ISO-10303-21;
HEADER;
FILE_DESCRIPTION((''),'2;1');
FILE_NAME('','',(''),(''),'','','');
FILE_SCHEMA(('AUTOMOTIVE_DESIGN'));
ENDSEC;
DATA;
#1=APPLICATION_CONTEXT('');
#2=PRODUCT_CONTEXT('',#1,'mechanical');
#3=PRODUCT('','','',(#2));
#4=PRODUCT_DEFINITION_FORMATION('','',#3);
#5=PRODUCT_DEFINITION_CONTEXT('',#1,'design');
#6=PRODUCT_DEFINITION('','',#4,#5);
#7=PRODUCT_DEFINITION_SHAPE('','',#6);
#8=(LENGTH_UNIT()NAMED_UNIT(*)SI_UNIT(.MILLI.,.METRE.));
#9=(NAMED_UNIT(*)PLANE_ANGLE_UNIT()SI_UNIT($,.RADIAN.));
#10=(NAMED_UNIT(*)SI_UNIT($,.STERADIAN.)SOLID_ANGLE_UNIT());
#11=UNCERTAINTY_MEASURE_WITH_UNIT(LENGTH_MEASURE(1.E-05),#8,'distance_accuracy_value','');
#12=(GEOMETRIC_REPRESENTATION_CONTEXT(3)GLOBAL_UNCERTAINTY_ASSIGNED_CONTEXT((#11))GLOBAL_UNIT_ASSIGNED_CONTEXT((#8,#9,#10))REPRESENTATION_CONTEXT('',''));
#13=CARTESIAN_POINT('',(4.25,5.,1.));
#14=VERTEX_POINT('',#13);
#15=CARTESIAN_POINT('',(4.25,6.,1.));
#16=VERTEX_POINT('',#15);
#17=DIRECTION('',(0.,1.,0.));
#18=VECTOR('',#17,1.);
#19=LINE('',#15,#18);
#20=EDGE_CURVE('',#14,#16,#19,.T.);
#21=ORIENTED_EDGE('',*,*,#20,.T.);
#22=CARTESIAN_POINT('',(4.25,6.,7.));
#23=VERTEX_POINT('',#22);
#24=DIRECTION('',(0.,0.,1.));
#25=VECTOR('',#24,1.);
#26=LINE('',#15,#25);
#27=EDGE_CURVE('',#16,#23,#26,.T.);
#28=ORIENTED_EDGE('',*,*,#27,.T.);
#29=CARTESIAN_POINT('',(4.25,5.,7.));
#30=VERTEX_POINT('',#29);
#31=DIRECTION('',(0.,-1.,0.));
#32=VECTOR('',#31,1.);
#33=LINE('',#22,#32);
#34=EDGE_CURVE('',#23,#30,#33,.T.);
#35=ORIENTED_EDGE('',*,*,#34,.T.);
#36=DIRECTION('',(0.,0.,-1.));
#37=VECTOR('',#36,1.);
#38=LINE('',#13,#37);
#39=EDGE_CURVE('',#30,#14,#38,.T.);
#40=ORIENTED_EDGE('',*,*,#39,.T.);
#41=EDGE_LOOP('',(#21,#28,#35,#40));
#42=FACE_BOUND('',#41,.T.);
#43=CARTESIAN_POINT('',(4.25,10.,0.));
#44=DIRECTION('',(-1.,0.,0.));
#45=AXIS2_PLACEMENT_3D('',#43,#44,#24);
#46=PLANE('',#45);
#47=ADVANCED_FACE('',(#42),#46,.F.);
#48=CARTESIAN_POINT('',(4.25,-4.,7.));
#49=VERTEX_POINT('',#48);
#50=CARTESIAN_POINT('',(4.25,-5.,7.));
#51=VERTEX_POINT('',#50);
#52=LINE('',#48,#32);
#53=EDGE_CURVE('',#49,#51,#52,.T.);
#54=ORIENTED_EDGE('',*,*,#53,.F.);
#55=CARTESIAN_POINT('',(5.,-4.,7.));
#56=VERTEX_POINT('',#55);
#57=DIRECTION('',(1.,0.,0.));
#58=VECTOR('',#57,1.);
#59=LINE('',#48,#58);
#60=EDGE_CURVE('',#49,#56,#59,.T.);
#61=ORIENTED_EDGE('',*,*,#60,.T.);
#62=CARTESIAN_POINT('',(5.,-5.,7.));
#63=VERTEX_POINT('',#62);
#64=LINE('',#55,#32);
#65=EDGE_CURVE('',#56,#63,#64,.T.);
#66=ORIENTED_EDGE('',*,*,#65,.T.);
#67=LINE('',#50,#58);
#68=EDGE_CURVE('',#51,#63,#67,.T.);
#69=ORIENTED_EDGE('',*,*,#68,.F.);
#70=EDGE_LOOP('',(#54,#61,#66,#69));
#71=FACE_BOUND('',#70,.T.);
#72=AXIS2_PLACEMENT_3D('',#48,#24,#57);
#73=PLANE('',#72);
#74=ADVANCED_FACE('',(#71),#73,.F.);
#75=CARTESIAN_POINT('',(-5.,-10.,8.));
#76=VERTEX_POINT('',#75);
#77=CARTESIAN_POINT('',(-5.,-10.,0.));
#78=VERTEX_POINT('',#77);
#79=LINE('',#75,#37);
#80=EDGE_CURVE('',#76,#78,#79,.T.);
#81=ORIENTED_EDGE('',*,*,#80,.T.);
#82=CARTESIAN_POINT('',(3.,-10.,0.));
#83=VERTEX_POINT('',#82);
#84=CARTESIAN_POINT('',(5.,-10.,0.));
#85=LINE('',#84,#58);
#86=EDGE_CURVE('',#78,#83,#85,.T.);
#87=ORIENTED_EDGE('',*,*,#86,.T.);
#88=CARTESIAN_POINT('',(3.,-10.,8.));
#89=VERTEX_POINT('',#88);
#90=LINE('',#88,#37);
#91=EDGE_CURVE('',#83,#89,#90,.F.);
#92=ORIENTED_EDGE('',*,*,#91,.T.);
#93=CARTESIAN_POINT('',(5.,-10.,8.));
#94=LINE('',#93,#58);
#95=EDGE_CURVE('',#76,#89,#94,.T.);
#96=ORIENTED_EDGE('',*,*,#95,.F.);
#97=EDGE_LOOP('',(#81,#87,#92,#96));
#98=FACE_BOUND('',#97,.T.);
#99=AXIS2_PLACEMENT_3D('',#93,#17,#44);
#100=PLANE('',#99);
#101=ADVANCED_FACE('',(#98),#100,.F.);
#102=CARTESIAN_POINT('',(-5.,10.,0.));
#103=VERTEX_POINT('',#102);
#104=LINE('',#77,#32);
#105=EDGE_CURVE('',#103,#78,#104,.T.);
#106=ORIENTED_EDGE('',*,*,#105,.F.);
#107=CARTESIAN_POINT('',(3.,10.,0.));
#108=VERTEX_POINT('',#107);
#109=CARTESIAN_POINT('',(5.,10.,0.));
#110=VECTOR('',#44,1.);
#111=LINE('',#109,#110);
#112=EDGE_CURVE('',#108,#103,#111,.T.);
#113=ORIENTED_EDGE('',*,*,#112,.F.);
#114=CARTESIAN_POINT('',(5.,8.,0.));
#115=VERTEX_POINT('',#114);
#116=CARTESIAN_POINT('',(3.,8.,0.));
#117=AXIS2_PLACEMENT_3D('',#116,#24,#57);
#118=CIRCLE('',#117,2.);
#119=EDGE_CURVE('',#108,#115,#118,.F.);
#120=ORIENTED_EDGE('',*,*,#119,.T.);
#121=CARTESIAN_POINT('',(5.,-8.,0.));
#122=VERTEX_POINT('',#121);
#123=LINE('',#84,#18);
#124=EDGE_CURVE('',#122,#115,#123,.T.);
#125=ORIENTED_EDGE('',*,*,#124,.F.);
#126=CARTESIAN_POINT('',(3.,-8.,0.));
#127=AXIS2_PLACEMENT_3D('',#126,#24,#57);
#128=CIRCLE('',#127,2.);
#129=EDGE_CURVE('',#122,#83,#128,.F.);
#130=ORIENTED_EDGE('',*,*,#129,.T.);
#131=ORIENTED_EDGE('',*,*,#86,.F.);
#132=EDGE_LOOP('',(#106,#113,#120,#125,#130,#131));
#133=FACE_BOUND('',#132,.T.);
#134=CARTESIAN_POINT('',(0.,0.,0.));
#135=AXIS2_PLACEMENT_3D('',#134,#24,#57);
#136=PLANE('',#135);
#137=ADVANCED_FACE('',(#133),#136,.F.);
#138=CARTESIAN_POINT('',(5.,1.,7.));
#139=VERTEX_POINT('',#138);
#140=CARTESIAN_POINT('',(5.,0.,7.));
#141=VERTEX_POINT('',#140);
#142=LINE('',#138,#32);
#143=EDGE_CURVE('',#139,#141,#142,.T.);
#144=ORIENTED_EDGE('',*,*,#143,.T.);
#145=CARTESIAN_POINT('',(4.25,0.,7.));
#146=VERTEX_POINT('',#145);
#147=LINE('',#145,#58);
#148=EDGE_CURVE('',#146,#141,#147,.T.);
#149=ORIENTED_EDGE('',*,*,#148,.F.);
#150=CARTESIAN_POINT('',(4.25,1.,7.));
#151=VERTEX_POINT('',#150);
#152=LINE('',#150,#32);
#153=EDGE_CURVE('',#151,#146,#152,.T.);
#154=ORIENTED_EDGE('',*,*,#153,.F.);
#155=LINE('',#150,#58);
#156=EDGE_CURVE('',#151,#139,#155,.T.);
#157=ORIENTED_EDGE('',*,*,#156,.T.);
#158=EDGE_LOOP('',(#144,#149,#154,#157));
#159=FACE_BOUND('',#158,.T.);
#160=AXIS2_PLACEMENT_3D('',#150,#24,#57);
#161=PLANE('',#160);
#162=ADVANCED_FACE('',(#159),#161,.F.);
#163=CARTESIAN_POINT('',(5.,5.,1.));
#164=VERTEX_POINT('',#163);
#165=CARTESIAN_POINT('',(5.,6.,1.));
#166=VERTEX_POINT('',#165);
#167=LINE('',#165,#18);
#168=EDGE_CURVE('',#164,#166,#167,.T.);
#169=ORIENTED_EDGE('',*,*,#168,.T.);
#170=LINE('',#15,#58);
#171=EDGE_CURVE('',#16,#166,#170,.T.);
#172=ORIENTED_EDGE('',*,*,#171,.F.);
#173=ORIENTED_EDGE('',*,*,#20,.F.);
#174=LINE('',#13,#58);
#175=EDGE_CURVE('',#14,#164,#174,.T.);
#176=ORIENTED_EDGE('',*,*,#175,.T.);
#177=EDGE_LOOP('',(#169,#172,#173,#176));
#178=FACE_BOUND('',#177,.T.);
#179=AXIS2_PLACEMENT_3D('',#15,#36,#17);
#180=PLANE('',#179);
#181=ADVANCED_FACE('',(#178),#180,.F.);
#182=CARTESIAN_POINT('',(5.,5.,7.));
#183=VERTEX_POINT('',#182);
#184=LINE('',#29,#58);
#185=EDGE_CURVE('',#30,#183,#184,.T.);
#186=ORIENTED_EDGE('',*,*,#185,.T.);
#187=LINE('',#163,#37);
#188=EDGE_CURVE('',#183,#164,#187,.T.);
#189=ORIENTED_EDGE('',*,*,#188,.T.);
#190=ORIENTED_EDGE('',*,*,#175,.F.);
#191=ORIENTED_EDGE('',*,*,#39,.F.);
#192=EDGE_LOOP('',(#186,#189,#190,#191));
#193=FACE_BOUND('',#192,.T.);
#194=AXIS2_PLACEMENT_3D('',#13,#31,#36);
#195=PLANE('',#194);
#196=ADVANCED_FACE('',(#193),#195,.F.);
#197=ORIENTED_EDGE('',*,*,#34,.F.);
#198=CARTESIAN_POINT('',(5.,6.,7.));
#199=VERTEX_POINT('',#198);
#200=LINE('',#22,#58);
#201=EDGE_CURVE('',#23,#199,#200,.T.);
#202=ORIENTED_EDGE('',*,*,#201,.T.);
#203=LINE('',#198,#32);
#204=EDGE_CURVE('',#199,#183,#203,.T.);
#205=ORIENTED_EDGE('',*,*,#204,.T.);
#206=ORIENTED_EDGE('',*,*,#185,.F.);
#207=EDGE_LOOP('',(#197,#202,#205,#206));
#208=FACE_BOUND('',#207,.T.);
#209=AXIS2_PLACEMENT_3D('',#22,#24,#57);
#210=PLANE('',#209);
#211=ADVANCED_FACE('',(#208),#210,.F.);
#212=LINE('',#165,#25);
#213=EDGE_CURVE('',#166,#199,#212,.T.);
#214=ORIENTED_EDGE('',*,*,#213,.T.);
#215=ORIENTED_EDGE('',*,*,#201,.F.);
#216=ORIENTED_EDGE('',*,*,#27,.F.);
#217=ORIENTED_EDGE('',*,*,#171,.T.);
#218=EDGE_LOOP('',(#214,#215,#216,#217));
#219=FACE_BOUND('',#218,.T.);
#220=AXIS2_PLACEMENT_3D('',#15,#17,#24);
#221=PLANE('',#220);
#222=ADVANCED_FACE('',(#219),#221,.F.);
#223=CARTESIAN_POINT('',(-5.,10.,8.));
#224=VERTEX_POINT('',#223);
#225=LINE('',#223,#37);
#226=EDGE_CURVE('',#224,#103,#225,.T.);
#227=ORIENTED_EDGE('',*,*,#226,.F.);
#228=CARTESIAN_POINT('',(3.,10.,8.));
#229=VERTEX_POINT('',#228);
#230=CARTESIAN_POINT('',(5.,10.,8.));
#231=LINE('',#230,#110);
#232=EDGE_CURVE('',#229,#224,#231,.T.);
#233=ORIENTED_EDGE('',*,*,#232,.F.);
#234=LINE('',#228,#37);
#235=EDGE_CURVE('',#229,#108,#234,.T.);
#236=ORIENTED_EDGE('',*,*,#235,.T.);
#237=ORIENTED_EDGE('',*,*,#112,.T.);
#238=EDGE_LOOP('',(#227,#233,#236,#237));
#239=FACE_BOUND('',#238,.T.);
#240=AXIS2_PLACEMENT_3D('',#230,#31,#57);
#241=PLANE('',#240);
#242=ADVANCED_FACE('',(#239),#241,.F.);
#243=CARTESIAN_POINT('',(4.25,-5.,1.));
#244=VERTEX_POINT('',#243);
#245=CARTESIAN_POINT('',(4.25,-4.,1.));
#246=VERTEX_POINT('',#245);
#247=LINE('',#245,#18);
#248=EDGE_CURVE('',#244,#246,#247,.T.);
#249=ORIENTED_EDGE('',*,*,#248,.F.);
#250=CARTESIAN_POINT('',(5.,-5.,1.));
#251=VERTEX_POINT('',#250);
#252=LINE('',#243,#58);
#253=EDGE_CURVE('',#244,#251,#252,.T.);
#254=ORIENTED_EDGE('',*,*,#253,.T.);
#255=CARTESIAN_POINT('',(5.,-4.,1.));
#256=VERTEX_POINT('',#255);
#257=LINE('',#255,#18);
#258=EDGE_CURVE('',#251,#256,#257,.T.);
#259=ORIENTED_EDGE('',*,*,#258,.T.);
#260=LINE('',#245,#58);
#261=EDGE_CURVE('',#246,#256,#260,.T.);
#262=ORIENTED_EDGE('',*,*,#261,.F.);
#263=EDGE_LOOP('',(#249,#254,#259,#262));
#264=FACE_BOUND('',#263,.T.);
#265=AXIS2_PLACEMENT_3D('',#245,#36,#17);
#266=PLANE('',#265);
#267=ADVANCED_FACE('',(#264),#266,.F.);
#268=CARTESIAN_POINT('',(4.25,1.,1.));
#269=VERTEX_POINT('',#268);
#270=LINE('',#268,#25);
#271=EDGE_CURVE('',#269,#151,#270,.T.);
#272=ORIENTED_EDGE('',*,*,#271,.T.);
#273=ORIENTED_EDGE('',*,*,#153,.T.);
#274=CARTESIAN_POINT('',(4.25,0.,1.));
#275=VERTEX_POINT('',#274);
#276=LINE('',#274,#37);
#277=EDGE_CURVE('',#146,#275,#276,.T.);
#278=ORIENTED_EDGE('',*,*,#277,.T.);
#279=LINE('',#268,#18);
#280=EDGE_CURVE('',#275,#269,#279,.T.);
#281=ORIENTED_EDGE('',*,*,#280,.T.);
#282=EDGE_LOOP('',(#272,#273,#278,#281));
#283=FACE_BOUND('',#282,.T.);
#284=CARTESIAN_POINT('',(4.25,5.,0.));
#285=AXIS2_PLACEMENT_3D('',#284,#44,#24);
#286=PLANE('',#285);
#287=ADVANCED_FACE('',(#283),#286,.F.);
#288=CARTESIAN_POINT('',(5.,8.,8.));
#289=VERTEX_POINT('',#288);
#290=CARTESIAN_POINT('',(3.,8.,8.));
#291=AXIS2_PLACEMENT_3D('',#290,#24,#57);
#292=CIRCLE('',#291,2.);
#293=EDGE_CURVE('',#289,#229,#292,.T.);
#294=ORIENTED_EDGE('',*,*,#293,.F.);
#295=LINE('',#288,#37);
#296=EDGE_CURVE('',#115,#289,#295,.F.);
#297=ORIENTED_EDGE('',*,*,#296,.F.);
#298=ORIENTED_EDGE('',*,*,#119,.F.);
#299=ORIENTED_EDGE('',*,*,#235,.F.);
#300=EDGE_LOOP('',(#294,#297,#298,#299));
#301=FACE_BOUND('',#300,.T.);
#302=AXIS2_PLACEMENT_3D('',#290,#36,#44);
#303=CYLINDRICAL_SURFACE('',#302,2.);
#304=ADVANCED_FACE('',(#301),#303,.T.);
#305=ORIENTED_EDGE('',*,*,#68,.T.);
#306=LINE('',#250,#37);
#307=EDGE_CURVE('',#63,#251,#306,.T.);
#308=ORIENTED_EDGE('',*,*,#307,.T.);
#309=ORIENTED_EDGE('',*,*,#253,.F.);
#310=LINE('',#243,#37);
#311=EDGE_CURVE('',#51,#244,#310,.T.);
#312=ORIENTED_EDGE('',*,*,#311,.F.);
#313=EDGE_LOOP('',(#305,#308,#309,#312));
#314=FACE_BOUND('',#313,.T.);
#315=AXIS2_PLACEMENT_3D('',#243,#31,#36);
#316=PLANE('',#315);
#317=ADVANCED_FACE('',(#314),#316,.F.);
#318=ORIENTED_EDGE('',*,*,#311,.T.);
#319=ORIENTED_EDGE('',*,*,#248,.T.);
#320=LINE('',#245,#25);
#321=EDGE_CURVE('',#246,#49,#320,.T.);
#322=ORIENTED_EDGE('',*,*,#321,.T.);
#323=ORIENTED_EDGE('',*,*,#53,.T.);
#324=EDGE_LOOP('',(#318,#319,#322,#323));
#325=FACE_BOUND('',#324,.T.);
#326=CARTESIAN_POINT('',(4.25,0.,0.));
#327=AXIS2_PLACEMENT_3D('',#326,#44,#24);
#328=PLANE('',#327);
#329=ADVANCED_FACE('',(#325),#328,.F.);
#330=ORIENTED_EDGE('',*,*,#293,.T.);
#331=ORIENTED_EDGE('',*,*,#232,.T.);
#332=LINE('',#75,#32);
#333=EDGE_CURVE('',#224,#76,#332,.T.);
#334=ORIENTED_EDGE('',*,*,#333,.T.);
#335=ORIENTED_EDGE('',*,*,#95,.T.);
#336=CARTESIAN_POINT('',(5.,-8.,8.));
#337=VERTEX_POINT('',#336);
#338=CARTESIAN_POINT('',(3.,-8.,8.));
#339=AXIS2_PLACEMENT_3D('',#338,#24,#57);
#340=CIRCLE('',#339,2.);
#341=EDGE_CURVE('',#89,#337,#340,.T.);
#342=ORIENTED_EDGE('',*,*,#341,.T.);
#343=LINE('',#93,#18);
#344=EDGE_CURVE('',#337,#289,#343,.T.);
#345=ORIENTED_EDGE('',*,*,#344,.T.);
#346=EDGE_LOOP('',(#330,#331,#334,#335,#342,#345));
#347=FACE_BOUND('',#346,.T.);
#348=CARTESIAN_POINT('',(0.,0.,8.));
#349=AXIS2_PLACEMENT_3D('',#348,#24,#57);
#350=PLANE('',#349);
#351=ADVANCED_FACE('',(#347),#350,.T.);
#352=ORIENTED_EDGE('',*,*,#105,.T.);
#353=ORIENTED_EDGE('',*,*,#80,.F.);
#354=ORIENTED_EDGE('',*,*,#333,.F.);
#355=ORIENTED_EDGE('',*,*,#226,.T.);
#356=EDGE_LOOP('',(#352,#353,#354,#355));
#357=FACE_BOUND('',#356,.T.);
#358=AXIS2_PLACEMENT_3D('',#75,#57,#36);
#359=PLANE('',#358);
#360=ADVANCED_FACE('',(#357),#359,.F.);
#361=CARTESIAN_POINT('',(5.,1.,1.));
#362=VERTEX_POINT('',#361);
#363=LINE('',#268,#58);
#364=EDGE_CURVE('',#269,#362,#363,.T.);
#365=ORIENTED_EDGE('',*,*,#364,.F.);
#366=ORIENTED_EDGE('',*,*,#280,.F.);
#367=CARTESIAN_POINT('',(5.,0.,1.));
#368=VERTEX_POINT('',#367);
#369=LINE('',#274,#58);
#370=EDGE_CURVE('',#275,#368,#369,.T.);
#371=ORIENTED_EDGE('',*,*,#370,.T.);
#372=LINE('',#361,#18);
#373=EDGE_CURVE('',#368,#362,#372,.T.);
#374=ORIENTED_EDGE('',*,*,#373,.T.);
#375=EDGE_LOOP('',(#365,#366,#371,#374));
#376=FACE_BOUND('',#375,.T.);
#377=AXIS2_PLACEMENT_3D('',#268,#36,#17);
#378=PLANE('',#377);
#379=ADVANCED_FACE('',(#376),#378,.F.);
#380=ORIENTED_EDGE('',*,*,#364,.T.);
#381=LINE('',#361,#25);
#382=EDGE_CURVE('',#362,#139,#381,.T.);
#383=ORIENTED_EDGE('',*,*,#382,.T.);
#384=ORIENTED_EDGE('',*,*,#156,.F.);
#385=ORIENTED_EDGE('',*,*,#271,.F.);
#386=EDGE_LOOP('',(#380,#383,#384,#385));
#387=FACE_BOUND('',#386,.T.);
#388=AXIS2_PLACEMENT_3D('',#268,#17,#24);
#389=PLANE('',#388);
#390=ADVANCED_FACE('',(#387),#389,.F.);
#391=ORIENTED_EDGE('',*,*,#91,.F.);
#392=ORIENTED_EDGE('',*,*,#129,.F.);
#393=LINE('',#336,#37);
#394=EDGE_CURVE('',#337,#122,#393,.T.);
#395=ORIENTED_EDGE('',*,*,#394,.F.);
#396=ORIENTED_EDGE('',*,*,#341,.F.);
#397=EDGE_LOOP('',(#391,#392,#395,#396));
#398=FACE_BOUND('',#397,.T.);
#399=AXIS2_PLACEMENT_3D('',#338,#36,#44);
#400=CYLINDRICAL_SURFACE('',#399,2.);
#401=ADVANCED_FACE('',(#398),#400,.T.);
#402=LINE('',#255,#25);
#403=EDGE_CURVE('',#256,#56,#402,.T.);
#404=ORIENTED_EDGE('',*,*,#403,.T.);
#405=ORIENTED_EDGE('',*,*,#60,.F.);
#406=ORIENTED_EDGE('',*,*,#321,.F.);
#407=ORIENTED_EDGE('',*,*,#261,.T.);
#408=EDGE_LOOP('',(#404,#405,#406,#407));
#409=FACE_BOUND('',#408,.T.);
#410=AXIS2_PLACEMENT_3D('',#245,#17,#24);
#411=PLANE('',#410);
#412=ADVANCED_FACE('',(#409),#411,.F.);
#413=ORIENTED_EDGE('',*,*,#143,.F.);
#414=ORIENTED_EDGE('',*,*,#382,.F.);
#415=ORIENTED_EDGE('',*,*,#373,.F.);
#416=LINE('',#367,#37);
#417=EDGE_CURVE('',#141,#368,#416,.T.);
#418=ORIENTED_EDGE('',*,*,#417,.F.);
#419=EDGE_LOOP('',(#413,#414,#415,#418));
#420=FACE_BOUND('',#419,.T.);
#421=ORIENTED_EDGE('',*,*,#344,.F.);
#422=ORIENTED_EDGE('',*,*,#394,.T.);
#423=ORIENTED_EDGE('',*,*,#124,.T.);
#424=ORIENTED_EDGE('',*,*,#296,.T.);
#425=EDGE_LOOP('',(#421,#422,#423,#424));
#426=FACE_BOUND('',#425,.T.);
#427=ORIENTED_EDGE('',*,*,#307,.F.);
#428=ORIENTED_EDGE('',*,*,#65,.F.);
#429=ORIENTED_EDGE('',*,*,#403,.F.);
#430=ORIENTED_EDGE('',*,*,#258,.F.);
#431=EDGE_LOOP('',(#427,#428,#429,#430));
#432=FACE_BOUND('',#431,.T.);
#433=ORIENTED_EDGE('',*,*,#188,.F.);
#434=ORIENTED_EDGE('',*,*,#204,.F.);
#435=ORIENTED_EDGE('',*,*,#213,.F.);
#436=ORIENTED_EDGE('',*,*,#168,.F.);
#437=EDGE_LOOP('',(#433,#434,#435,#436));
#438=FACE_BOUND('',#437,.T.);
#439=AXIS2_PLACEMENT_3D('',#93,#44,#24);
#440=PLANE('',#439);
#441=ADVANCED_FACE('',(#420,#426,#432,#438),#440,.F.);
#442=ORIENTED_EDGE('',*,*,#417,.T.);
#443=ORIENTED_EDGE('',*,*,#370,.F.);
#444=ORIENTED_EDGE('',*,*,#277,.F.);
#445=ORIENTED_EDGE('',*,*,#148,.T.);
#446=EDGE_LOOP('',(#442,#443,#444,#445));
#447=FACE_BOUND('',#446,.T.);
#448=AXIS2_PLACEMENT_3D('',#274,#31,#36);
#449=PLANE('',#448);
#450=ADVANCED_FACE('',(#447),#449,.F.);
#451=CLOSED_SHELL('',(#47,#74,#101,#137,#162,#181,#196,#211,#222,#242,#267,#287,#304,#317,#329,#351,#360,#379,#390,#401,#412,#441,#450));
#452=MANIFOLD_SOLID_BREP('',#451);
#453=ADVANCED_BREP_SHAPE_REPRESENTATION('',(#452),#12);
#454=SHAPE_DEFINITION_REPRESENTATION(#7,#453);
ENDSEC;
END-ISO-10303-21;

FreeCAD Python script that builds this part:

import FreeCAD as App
import Part
import Sketcher

V = App.Vector
Q = App.Units.Quantity


def edges_at(feature, points):
    """Names of the edges that pass closest to the given points."""
    edges = feature.Shape.Edges
    near = lambda p: min(range(len(edges)), key=lambda i: edges[i].distToShape(Part.Vertex(*p))[0])
    return sorted({f"Edge{near(p) + 1}" for p in points})


def add_polygon(sketch, points):
    """Adds a closed chain of lines whose ends are joined by coincident constraints."""
    first, n = sketch.GeometryCount, len(points)
    for a, b in zip(points, points[1:] + points[:1]):
        sketch.addGeometry(Part.LineSegment(App.Vector(*a, 0), App.Vector(*b, 0)), False)
    for i in range(n):
        sketch.addConstraint(Sketcher.Constraint("Coincident", first + i, 2, first + (i + 1) % n, 1))

doc = App.newDocument("Part")
params = doc.addObject("Spreadsheet::Sheet", "Params")
for row, (alias, value) in enumerate([
    ("sketch1_width", "10 mm"),
    ("sketch1_height", "20 mm"),
    ("pad1_length", "8 mm"),
    ("fillet_radius", "2 mm"),
    ("sketch2_width", "1 mm"),
    ("sketch2_height", "6 mm"),
    ("pocket1_length", "0.75 mm"),
    ("linearpattern_pitch", "5 mm"),
], start=1):
    params.set(f"A{row}", alias)
    params.set(f"B{row}", "=" + value)
    params.setAlias(f"B{row}", alias)

body = doc.addObject("PartDesign::Body", "Body")

# Sketch on XY plane
sketch1 = body.newObject("Sketcher::SketchObject", "Sketch")
sketch1.AttachmentSupport = (doc.getObject("XY_Plane"), [""])
sketch1.MapMode = "FlatFace"
add_polygon(sketch1, [(-5, 10), (-5, -10), (5, -10), (5, 10)])  # lines 0-3
sketch1.addConstraint([
    Sketcher.Constraint("Vertical", 0),
    Sketcher.Constraint("Horizontal", 1),
    Sketcher.Constraint("Vertical", 2),
    Sketcher.Constraint("Horizontal", 3),
    Sketcher.Constraint("Symmetric", 0, 2, 2, 2, -1, 1),
    Sketcher.Constraint("DistanceX", 1, 1, 1, 2, Q("10 mm")),
    Sketcher.Constraint("DistanceY", 0, 2, 0, 1, Q("20 mm")),
])
sketch1.setExpression("Constraints[9]", "Params.sketch1_width")
sketch1.setExpression("Constraints[10]", "Params.sketch1_height")
pad1 = body.newObject("PartDesign::Pad", "Pad")
pad1.Profile = sketch1
pad1.setExpression("Length", "Params.pad1_length")
doc.recompute()

fillet = body.newObject("PartDesign::Fillet", "Fillet")
fillet.Base = (pad1, edges_at(pad1, [(5, 10, 4), (5, -10, 4)]))
fillet.setExpression("Radius", "Params.fillet_radius")

# Sketch on YZ plane
sketch2 = body.newObject("Sketcher::SketchObject", "Sketch001")
sketch2.AttachmentSupport = (doc.getObject("YZ_Plane"), [""])
sketch2.MapMode = "FlatFace"
sketch2.AttachmentOffset = App.Placement(V(0, 0, 5), App.Rotation())
add_polygon(sketch2, [(-4, 7), (-5, 7), (-5, 1), (-4, 1)])  # lines 0-3
sketch2.addConstraint([
    Sketcher.Constraint("Horizontal", 0),
    Sketcher.Constraint("Vertical", 1),
    Sketcher.Constraint("Horizontal", 2),
    Sketcher.Constraint("Vertical", 3),
    Sketcher.Constraint("DistanceX", 0, 2, 0, 1, Q("1 mm")),
    Sketcher.Constraint("DistanceY", 1, 2, 1, 1, Q("6 mm")),
    Sketcher.Constraint("DistanceX", 0, 2, -1, 1, Q("5 mm")),
    Sketcher.Constraint("DistanceY", -1, 1, 0, 2, Q("7 mm")),
])
sketch2.setExpression("Constraints[8]", "Params.sketch2_width")
sketch2.setExpression("Constraints[9]", "Params.sketch2_height")
pocket1 = body.newObject("PartDesign::Pocket", "Pocket")
pocket1.Profile = sketch2
pocket1.setExpression("Length", "Params.pocket1_length")
doc.recompute()

linearpattern = body.newObject("PartDesign::LinearPattern", "LinearPattern")
linearpattern.Originals = [pocket1]
linearpattern.Direction = (doc.getObject("Y_Axis"), [""])
linearpattern.Mode = "offset"
linearpattern.setExpression("Offset", "Params.linearpattern_pitch")
linearpattern.Occurrences = 3
body.Tip = linearpattern

doc.recompute()
